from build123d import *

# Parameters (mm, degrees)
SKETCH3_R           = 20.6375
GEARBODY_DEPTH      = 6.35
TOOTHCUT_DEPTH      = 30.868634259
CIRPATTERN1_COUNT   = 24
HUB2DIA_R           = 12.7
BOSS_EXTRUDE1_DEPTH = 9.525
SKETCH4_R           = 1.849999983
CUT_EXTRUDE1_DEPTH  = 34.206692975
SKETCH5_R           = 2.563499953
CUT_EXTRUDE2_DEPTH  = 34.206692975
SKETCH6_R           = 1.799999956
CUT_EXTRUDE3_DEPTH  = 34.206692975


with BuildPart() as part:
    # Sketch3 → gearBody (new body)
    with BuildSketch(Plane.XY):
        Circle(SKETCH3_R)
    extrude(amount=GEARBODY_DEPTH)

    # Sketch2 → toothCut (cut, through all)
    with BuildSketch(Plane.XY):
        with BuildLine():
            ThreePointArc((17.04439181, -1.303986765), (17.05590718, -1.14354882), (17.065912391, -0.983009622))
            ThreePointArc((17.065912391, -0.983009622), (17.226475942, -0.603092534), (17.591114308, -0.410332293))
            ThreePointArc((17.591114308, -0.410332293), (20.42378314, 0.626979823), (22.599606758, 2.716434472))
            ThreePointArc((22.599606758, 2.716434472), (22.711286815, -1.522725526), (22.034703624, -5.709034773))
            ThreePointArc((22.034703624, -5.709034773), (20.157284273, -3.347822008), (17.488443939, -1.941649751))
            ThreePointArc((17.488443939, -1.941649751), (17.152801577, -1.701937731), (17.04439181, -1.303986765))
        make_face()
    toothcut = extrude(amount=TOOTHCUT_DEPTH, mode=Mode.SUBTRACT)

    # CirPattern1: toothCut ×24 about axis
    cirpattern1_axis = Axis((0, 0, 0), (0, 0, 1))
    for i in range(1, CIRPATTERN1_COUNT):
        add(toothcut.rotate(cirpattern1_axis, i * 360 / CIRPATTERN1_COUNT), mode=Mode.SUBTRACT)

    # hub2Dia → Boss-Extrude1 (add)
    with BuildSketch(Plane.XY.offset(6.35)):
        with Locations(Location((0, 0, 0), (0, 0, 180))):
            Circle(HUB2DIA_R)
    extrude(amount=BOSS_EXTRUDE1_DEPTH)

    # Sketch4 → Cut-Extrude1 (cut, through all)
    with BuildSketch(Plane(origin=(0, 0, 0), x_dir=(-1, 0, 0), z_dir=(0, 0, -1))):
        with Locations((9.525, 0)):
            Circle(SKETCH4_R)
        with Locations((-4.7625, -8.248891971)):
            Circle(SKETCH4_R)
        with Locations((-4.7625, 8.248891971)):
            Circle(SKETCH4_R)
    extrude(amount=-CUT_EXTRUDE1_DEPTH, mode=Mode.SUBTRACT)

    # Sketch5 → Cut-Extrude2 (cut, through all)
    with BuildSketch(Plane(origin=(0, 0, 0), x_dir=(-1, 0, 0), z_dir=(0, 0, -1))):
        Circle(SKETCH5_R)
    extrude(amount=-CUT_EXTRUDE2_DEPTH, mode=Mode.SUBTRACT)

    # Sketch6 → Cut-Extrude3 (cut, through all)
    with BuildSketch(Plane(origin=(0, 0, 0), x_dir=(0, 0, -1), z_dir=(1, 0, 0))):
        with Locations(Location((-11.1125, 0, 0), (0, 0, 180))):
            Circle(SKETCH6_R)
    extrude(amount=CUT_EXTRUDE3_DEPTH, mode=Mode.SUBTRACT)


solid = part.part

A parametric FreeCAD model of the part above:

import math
import FreeCAD as App
import Part
import Sketcher

V = App.Vector
Q = App.Units.Quantity

doc = App.newDocument("Part")
params = doc.addObject("Spreadsheet::Sheet", "Params")
for row, (alias, value) in enumerate([
    ("sketch1_diameter", "1.625 in"),
    ("pad1_length", "0.25 in"),
    ("sketch3_diameter", "1 in"),
    ("pad2_length", "0.375 in"),
], start=1):
    params.set(f"A{row}", alias)
    params.set(f"B{row}", "=" + value)
    params.setAlias(f"B{row}", alias)

body = doc.addObject("PartDesign::Body", "Body")

# Sketch on XY plane
sketch1 = body.newObject("Sketcher::SketchObject", "Sketch")
sketch1.AttachmentSupport = (doc.getObject("XY_Plane"), [""])
sketch1.MapMode = "FlatFace"
sketch1.addGeometry(Part.Circle(V(0, 0, 0), V(0, 0, 1), 20.6375), False)
sketch1.addConstraint(Sketcher.Constraint("Coincident", 0, 3, -1, 1))
sketch1.addConstraint(Sketcher.Constraint("Diameter", 0, Q("1.625 in")))
sketch1.setExpression("Constraints[1]", "Params.sketch1_diameter")
pad1 = body.newObject("PartDesign::Pad", "Pad")
pad1.Profile = sketch1
pad1.setExpression("Length", "Params.pad1_length")

# Sketch on XY plane
sketch2 = body.newObject("Sketcher::SketchObject", "Sketch001")
sketch2.AttachmentSupport = (doc.getObject("XY_Plane"), [""])
sketch2.MapMode = "FlatFace"
sketch2.addGeometry(Part.ArcOfCircle(Part.Circle(V(-0.000012, 0.000001, 0), V(0, 0, 1), 17.094212), math.radians(-4.37491), math.radians(-3.296638)), False)
sketch2.addGeometry(Part.ArcOfCircle(Part.Circle(V(17.656964, -1.350852, 0), V(0, 0, 1), 0.614362), math.radians(175.62509), math.radians(254.079635)), False)
sketch2.addGeometry(Part.ArcOfCircle(Part.Circle(V(15.475978, -8.996949, 0), V(0, 0, 1), 7.336707), math.radians(26.62478), math.radians(74.079635)), False)
sketch2.addGeometry(Part.ArcOfCircle(Part.Circle(V(0, 0, 0), V(0, 0, 1), 22.762277), math.radians(-14.525522), math.radians(6.853974)), False)
sketch2.addGeometry(Part.ArcOfCircle(Part.Circle(V(16.538501, 6.850471, 0), V(0, 0, 1), 7.336707), math.radians(-81.751183), math.radians(-34.296328)), False)
sketch2.addGeometry(Part.ArcOfCircle(Part.Circle(V(17.679258, -1.018339, 0), V(0, 0, 1), 0.614363), math.radians(98.248817), math.radians(176.703362)), False)
sketch2.addConstraint(Sketcher.Constraint("Tangent", 0, 1, 1, 1))
sketch2.addConstraint(Sketcher.Constraint("Tangent", 1, 2, 2, 2))
sketch2.addConstraint(Sketcher.Constraint("Coincident", 2, 1, 3, 1))
sketch2.addConstraint(Sketcher.Constraint("Coincident", 3, 2, 4, 2))
sketch2.addConstraint(Sketcher.Constraint("Tangent", 4, 1, 5, 1))
sketch2.addConstraint(Sketcher.Constraint("Tangent", 5, 2, 0, 2))
sketch2.addConstraint(Sketcher.Constraint("Coincident", 3, 3, -1, 1))
sketch2.addConstraint(Sketcher.Constraint("Equal", 2, 4))
sketch2.addConstraint(Sketcher.Constraint("Equal", 1, 5))
sketch2.addConstraint(Sketcher.Constraint("PointOnObject", 0, 3, -1))
sketch2.addConstraint(Sketcher.Constraint("Radius", 0, Q("17.094212 mm")))
sketch2.addConstraint(Sketcher.Constraint("Radius", 1, Q("0.614362 mm")))
sketch2.addConstraint(Sketcher.Constraint("Radius", 2, Q("7.336707 mm")))
sketch2.addConstraint(Sketcher.Constraint("Radius", 3, Q("22.762277 mm")))
sketch2.addConstraint(Sketcher.Constraint("DistanceX", -1, 1, 4, 3, Q("16.538501 mm")))
sketch2.addConstraint(Sketcher.Constraint("DistanceY", 2, 3, 1, 2, Q("7.055299 mm")))
sketch2.addConstraint(Sketcher.Constraint("DistanceX", 5, 2, 4, 1, Q("0.525202 mm")))
sketch2.addConstraint(Sketcher.Constraint("DistanceY", 1, 3, -1, 1, Q("1.350852 mm")))
sketch2.addConstraint(Sketcher.Constraint("DistanceY", -1, 1, 4, 3, Q("6.850471 mm")))
pocket1 = body.newObject("PartDesign::Pocket", "Pocket")
pocket1.Profile = sketch2
pocket1.Type = "ThroughAll"
pocket1.Reversed = True
doc.recompute()

polarpattern = body.newObject("PartDesign::PolarPattern", "PolarPattern")
polarpattern.Originals = [pocket1]
polarpattern.Axis = (doc.getObject("Z_Axis"), [""])
polarpattern.Angle = 360
polarpattern.Occurrences = 24
body.Tip = polarpattern

# Sketch on XY plane
sketch3 = body.newObject("Sketcher::SketchObject", "Sketch002")
sketch3.AttachmentSupport = (doc.getObject("XY_Plane"), [""])
sketch3.MapMode = "FlatFace"
sketch3.AttachmentOffset = App.Placement(V(0, 0, 0.25 * 25.4), App.Rotation())
sketch3.addGeometry(Part.Circle(V(0, 0, 0), V(0, 0, 1), 12.7), False)
sketch3.addConstraint(Sketcher.Constraint("Coincident", 0, 3, -1, 1))
sketch3.addConstraint(Sketcher.Constraint("Diameter", 0, Q("1 in")))
sketch3.setExpression("Constraints[1]", "Params.sketch3_diameter")
pad2 = body.newObject("PartDesign::Pad", "Pad001")
pad2.Profile = sketch3
pad2.setExpression("Length", "Params.pad2_length")

# Sketch on XY plane
sketch4 = body.newObject("Sketcher::SketchObject", "Sketch003")
sketch4.AttachmentSupport = (doc.getObject("XY_Plane"), [""])
sketch4.MapMode = "FlatFace"
sketch4.addGeometry(Part.Circle(V(-9.525, 0, 0), V(0, 0, 1), 1.85), False)
sketch4.addGeometry(Part.Circle(V(4.7625, -8.248892, 0), V(0, 0, 1), 1.85), False)
sketch4.addGeometry(Part.Circle(V(4.7625, 8.248892, 0), V(0, 0, 1), 1.85), False)
sketch4.addConstraint(Sketcher.Constraint("Equal", 0, 1))
sketch4.addConstraint(Sketcher.Constraint("Equal", 1, 2))
sketch4.addConstraint(Sketcher.Constraint("Symmetric", 1, 3, 2, 3, -1))
sketch4.addConstraint(Sketcher.Constraint("PointOnObject", 0, 3, -1))
sketch4.addConstraint(Sketcher.Constraint("Diameter", 0, Q("3.7 mm")))
sketch4.addConstraint(Sketcher.Constraint("DistanceX", 0, 3, -1, 1, Q("0.375 in")))
sketch4.addConstraint(Sketcher.Constraint("DistanceX", -1, 1, 1, 3, Q("0.1875 in")))
sketch4.addConstraint(Sketcher.Constraint("DistanceY", 1, 3, -1, 1, Q("8.248892 mm")))
pocket2 = body.newObject("PartDesign::Pocket", "Pocket001")
pocket2.Profile = sketch4
pocket2.Type = "ThroughAll"
pocket2.Reversed = True

# Sketch on XY plane
sketch5 = body.newObject("Sketcher::SketchObject", "Sketch004")
sketch5.AttachmentSupport = (doc.getObject("XY_Plane"), [""])
sketch5.MapMode = "FlatFace"
sketch5.addGeometry(Part.Circle(V(0, 0, 0), V(0, 0, 1), 2.5635), False)
sketch5.addConstraint(Sketcher.Constraint("Coincident", 0, 3, -1, 1))
sketch5.addConstraint(Sketcher.Constraint("Diameter", 0, Q("5.127 mm")))
pocket3 = body.newObject("PartDesign::Pocket", "Pocket002")
pocket3.Profile = sketch5
pocket3.Type = "ThroughAll"
pocket3.Reversed = True

# Sketch on YZ plane
sketch6 = body.newObject("Sketcher::SketchObject", "Sketch005")
sketch6.AttachmentSupport = (doc.getObject("YZ_Plane"), [""])
sketch6.MapMode = "FlatFace"
sketch6.addGeometry(Part.Circle(V(0, 11.1125, 0), V(0, 0, 1), 1.8), False)
sketch6.addConstraint(Sketcher.Constraint("PointOnObject", 0, 3, -2))
sketch6.addConstraint(Sketcher.Constraint("Diameter", 0, Q("3.6 mm")))
sketch6.addConstraint(Sketcher.Constraint("DistanceY", -1, 1, 0, 3, Q("0.4375 in")))
pocket4 = body.newObject("PartDesign::Pocket", "Pocket003")
pocket4.Profile = sketch6
pocket4.Type = "ThroughAll"
pocket4.Reversed = True

doc.recompute()
